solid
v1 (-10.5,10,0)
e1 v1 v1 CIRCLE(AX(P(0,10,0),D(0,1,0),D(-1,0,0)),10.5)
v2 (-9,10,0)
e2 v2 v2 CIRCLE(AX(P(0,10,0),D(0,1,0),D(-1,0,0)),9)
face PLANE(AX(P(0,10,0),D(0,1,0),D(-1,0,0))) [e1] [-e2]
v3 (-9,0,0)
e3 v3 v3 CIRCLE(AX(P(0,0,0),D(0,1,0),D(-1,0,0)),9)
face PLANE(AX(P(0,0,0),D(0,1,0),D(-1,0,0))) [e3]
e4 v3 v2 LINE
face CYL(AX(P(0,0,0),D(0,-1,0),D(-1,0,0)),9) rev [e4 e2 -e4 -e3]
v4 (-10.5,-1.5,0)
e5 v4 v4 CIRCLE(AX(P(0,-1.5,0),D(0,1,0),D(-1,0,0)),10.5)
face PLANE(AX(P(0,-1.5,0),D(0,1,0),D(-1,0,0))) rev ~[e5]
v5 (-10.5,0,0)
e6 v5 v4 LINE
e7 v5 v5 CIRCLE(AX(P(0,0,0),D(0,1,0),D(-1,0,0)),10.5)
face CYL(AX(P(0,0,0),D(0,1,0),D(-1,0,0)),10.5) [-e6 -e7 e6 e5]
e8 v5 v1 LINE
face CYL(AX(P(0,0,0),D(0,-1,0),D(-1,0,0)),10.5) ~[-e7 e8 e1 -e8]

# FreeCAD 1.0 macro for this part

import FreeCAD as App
import Part
import Sketcher
Q = App.Units.Quantity

doc = App.newDocument("Part")
body = doc.addObject("PartDesign::Body", "Body")

# Sketch on XZ plane
sketch1 = doc.addObject("Sketcher::SketchObject", "Sketch")
body.addObject(sketch1)
sketch1.AttachmentSupport = (doc.XZ_Plane, [""])
sketch1.MapMode = "FlatFace"
sketch1.addGeometry(Part.Circle(App.Vector(0, 0, 0), App.Vector(0, 0, 1), 10), False)
sketch1.addGeometry(Part.Circle(App.Vector(0, 0, 0), App.Vector(0, 0, 1), 9), False)
sketch1.addConstraint(Sketcher.Constraint("Coincident", 0, 3, -1, 1))
sketch1.addConstraint(Sketcher.Constraint("Coincident", 1, 3, -1, 1))
sketch1.addConstraint(Sketcher.Constraint("Diameter", 0, Q("21 mm")))
sketch1.addConstraint(Sketcher.Constraint("Diameter", 1, Q("18 mm")))
pad1 = doc.addObject("PartDesign::Pad", "Pad")
body.addObject(pad1)
pad1.Profile = sketch1
pad1.Length = 10
pad1.Reversed = True

# Sketch on XZ plane
sketch2 = doc.addObject("Sketcher::SketchObject", "Sketch001")
body.addObject(sketch2)
sketch2.AttachmentSupport = (doc.XZ_Plane, [""])
sketch2.MapMode = "FlatFace"
sketch2.addGeometry(Part.Circle(App.Vector(0, 0, 0), App.Vector(0, 0, 1), 10), False)
sketch2.addConstraint(Sketcher.Constraint("Coincident", 0, 3, -1, 1))
sketch2.addConstraint(Sketcher.Constraint("Diameter", 0, Q("21 mm")))
pad2 = doc.addObject("PartDesign::Pad", "Pad001")
body.addObject(pad2)
pad2.Profile = sketch2
pad2.Length = 1.5

doc.recompute()
